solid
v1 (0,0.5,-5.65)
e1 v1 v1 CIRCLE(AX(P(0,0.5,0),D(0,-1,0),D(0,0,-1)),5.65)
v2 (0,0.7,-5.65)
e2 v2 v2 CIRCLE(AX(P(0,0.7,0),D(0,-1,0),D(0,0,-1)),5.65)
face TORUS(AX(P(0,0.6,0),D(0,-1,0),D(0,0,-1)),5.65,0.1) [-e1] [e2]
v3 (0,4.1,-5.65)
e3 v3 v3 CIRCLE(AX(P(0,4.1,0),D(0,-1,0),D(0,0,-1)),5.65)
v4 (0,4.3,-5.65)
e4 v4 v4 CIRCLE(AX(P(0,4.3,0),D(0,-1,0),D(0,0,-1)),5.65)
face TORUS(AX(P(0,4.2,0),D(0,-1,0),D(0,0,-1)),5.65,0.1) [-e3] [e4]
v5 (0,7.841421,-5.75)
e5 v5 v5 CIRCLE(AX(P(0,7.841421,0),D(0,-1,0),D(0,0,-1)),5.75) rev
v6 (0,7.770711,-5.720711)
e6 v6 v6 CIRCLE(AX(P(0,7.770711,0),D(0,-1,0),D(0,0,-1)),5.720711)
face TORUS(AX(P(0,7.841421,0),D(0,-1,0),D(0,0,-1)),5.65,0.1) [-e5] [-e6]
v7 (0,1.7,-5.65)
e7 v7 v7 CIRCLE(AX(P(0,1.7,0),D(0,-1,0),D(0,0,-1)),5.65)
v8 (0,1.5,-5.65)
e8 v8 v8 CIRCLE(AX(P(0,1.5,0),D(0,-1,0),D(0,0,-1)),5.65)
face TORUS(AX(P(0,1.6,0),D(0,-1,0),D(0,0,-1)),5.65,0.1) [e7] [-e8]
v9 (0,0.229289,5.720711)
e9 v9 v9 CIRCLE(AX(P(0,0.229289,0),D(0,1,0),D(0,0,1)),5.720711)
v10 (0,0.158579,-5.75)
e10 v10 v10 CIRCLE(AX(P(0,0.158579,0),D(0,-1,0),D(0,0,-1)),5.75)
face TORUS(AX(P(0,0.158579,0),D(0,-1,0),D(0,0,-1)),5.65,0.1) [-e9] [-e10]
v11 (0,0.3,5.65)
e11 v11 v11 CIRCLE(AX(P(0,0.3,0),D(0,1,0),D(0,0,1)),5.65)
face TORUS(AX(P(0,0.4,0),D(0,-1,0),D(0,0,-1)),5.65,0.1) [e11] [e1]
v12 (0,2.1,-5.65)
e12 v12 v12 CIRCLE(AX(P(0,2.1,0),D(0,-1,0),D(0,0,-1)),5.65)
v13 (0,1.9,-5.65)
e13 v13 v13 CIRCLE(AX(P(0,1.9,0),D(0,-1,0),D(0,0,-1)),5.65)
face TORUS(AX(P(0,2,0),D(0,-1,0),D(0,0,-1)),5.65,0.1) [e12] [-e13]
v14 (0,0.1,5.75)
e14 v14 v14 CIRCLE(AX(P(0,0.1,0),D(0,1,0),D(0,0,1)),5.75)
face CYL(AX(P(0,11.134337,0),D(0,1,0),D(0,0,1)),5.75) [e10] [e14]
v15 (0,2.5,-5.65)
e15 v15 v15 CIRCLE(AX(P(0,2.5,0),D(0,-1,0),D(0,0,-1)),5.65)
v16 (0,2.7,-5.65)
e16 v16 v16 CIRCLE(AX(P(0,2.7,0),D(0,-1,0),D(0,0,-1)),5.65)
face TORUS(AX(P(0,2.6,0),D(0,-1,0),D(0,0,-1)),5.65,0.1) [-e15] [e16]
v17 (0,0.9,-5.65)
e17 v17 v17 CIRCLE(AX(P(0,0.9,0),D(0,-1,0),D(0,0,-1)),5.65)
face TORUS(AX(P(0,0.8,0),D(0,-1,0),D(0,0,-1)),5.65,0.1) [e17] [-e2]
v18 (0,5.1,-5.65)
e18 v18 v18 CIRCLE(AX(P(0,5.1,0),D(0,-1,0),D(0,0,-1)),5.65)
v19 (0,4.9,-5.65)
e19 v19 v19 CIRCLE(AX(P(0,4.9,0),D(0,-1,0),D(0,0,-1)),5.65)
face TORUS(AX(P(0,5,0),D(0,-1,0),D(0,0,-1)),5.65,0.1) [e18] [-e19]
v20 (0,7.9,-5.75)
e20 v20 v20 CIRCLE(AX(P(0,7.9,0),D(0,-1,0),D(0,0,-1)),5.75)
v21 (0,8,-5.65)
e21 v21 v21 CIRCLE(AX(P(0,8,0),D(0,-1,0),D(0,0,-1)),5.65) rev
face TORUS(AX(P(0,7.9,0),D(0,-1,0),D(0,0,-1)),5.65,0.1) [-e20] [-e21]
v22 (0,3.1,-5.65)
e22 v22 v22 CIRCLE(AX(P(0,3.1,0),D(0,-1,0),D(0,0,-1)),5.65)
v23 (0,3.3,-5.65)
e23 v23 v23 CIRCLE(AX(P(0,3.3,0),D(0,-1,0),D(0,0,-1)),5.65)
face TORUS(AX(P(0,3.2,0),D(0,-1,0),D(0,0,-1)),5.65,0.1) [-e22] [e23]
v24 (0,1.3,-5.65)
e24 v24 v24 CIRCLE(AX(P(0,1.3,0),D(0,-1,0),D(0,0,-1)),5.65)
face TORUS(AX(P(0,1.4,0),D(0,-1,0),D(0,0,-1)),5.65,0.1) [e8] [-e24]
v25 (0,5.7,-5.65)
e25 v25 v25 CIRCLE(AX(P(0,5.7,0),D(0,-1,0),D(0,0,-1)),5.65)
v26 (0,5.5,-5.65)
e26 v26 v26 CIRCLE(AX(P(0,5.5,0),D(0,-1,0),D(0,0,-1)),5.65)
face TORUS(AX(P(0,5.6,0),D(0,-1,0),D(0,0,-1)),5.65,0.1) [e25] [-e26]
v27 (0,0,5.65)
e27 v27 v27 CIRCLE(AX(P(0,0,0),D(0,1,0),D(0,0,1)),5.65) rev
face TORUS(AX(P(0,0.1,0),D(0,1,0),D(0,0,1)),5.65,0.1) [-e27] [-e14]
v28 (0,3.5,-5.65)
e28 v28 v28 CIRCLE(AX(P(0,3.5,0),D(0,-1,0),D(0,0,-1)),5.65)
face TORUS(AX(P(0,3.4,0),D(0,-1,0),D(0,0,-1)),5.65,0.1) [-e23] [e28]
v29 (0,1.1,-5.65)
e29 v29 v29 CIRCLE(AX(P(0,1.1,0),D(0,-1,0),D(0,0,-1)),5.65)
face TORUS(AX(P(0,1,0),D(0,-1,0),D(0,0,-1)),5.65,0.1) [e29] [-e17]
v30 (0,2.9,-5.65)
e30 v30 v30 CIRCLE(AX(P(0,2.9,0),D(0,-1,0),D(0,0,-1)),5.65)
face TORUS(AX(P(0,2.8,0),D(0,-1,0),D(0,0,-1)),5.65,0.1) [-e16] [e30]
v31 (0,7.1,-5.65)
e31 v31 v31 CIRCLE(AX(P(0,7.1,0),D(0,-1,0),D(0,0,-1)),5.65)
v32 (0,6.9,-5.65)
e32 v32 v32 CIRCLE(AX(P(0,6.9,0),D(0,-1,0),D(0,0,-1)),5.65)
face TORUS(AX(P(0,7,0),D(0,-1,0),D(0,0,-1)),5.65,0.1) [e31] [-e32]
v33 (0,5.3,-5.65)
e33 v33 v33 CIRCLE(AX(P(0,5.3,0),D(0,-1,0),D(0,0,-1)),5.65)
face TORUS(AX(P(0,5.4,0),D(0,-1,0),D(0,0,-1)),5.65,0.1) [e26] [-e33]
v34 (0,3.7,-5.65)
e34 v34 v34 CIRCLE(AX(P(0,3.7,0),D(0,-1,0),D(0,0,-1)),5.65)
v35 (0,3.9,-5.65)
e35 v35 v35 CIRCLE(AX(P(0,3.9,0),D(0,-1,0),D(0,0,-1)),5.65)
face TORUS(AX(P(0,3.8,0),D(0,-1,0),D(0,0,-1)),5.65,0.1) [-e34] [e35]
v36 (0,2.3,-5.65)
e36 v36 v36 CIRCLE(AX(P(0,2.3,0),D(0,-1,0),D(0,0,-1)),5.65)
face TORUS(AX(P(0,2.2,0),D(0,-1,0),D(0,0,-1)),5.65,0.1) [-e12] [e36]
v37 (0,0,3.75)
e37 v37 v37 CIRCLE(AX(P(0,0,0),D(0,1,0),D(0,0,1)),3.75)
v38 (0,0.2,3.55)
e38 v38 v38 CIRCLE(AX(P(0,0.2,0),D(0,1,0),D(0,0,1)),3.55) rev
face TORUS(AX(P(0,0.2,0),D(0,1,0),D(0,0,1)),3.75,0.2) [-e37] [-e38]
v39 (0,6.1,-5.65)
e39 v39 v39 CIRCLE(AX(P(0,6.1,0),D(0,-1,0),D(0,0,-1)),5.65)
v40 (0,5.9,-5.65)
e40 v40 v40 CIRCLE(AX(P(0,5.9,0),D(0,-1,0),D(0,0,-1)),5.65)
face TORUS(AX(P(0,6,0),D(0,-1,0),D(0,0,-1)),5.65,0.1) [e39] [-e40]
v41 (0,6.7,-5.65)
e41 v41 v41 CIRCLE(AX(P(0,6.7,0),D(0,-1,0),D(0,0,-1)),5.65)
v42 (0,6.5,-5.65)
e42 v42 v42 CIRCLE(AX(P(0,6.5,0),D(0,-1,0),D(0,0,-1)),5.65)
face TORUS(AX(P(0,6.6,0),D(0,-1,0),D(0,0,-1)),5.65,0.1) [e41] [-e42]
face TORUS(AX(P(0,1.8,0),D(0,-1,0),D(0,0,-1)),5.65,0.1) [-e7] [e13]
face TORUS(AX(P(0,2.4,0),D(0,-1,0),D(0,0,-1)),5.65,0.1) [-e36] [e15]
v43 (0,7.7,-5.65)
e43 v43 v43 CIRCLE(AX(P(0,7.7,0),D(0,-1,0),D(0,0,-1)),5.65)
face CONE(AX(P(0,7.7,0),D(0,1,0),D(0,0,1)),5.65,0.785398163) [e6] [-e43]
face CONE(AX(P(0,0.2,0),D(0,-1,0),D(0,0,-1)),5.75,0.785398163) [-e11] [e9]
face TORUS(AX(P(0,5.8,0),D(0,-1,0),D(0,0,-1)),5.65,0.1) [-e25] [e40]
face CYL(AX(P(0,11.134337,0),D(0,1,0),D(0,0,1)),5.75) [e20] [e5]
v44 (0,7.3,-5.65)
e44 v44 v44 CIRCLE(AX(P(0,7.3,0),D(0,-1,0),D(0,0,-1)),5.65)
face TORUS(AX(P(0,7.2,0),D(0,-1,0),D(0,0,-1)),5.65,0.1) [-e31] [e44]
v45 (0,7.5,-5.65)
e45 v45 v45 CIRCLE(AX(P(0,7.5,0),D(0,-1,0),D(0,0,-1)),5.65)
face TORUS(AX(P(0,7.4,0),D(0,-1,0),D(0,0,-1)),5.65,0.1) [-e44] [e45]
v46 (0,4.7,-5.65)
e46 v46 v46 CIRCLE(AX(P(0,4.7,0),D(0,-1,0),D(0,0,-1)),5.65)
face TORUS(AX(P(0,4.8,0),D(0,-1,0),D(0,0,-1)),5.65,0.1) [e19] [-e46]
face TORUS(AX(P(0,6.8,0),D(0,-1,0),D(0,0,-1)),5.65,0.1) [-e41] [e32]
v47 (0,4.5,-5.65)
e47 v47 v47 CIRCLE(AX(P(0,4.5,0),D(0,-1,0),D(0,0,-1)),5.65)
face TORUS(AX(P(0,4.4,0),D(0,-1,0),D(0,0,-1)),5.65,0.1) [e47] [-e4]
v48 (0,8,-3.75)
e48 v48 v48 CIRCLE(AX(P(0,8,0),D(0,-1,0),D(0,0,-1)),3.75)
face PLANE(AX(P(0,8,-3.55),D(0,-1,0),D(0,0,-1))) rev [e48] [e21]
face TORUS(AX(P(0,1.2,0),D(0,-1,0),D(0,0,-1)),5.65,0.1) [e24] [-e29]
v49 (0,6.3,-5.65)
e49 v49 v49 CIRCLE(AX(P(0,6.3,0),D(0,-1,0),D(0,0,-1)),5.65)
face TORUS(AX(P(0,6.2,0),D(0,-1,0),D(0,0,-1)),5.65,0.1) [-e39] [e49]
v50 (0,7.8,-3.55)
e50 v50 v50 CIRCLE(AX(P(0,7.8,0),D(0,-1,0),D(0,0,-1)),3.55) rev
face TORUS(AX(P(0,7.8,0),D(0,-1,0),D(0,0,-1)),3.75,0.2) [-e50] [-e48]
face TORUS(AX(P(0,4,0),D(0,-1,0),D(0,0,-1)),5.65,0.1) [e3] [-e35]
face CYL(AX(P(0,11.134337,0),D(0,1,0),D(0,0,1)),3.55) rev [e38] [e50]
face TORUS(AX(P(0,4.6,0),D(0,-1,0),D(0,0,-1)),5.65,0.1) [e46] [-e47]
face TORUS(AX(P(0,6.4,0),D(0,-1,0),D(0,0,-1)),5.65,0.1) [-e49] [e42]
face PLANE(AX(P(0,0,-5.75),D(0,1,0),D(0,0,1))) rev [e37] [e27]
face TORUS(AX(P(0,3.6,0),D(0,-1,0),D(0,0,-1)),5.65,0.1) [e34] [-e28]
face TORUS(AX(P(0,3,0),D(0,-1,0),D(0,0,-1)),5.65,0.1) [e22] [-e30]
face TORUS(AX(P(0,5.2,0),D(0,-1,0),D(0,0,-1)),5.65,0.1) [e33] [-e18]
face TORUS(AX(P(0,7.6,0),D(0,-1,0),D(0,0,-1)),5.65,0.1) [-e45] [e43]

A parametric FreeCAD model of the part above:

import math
import FreeCAD as App
import Part
import Sketcher
from FreeCAD import Vector
Q = App.Units.Quantity


def edges_at(feature, points):
    """Names of the edges that pass closest to the given points."""
    edges = feature.Shape.Edges
    near = lambda p: min(range(len(edges)), key=lambda i: edges[i].distToShape(Part.Vertex(*p))[0])
    return sorted({f"Edge{near(p) + 1}" for p in points})


def add_polygon(sketch, points):
    """Adds a closed chain of lines whose ends are joined by coincident constraints."""
    first, n = sketch.GeometryCount, len(points)
    for a, b in zip(points, points[1:] + points[:1]):
        sketch.addGeometry(Part.LineSegment(App.Vector(*a, 0), App.Vector(*b, 0)), False)
    for i in range(n):
        sketch.addConstraint(Sketcher.Constraint("Coincident", first + i, 2, first + (i + 1) % n, 1))

doc = App.newDocument("Part")
body = doc.addObject("PartDesign::Body", "Body")

# Sketch on YZ plane
sketch1 = body.newObject("Sketcher::SketchObject", "Sketch")
sketch1.AttachmentSupport = (doc.getObject("YZ_Plane"), [""])
sketch1.MapMode = "FlatFace"
add_polygon(sketch1, [(8, -5.75), (8, -3.55), (0, -3.55), (0, -5.75), (0.2, -5.75), (0.3, -5.65), (0.3, -5.5), (7.7, -5.5), (7.7, -5.65), (7.8, -5.75)])  # lines 0-9
sketch1.addConstraint(Sketcher.Constraint("Vertical", 0))
sketch1.addConstraint(Sketcher.Constraint("Horizontal", 1))
sketch1.addConstraint(Sketcher.Constraint("Vertical", 2))
sketch1.addConstraint(Sketcher.Constraint("Horizontal", 3))
sketch1.addConstraint(Sketcher.Constraint("Vertical", 5))
sketch1.addConstraint(Sketcher.Constraint("Horizontal", 6))
sketch1.addConstraint(Sketcher.Constraint("Vertical", 7))
sketch1.addConstraint(Sketcher.Constraint("Horizontal", 9))
sketch1.addConstraint(Sketcher.Constraint("PointOnObject", 1, 2, -2))
sketch1.addConstraint(Sketcher.Constraint("Perpendicular", 4, 8))
sketch1.addConstraint(Sketcher.Constraint("Horizontal", 4, 2, 7, 2))
sketch1.addConstraint(Sketcher.Constraint("Horizontal", 3, 2, 8, 2))
sketch1.addConstraint(Sketcher.Constraint("Equal", 3, 9))
sketch1.addConstraint(Sketcher.Constraint("Equal", 4, 8))
sketch1.addConstraint(Sketcher.Constraint("DistanceX", 1, 2, 1, 1, Q("8 mm")))
sketch1.addConstraint(Sketcher.Constraint("DistanceX", 3, 1, 3, 2, Q("0.2 mm")))
sketch1.addConstraint(Sketcher.Constraint("DistanceX", 6, 1, 6, 2, Q("7.4 mm")))
sketch1.addConstraint(Sketcher.Constraint("DistanceY", 0, 1, 0, 2, Q("2.2 mm")))
sketch1.addConstraint(Sketcher.Constraint("DistanceY", 5, 1, 5, 2, Q("0.15 mm")))
sketch1.addConstraint(Sketcher.Constraint("DistanceY", 5, 2, -1, 1, Q("5.5 mm")))
revolution = body.newObject("PartDesign::Revolution", "Revolution")
revolution.Profile = sketch1
revolution.ReferenceAxis = (sketch1, ["H_Axis"])
revolution.Angle = 360
doc.recompute()

fillet = body.newObject("PartDesign::Fillet", "Fillet")
fillet.Base = (revolution, edges_at(revolution, [(0, 8, -3.55), (0, 0, -3.55)]))
fillet.Radius = 0.2
doc.recompute()

fillet2 = body.newObject("PartDesign::Fillet", "Fillet001")
fillet2.Base = (fillet, edges_at(fillet, [
    (0, 7.8, -5.75),
    (0, 8, -5.75),
    (0, 0, -5.75),
    (0, 0.2, -5.75),
]))
fillet2.Radius = 0.1

# Sketch on YZ plane
sketch2 = body.newObject("Sketcher::SketchObject", "Sketch001")
sketch2.AttachmentSupport = (doc.getObject("YZ_Plane"), [""])
sketch2.MapMode = "FlatFace"
sketch2.addGeometry(Part.LineSegment(Vector(7.7, -5.65, 0), Vector(7.7, -5.5, 0)), False)
sketch2.addGeometry(Part.LineSegment(Vector(7.7, -5.5, 0), Vector(7.5, -5.5, 0)), False)
sketch2.addGeometry(Part.LineSegment(Vector(7.5, -5.5, 0), Vector(7.5, -5.65, 0)), False)
sketch2.addGeometry(Part.ArcOfCircle(Part.Circle(Vector(7.6, -5.65, 0), Vector(0, 0, 1), 0.1), math.radians(180), math.radians(360)), False)
sketch2.addConstraint(Sketcher.Constraint("Coincident", 0, 2, 1, 1))
sketch2.addConstraint(Sketcher.Constraint("Coincident", 1, 2, 2, 1))
sketch2.addConstraint(Sketcher.Constraint("Tangent", 2, 2, 3, 1))
sketch2.addConstraint(Sketcher.Constraint("Tangent", 3, 2, 0, 1))
sketch2.addConstraint(Sketcher.Constraint("Vertical", 0))
sketch2.addConstraint(Sketcher.Constraint("Horizontal", 1))
sketch2.addConstraint(Sketcher.Constraint("Vertical", 2))
sketch2.addConstraint(Sketcher.Constraint("Radius", 3, Q("0.1 mm")))
sketch2.addConstraint(Sketcher.Constraint("DistanceY", 0, 1, 0, 2, Q("0.15 mm")))
sketch2.addConstraint(Sketcher.Constraint("DistanceX", -1, 1, 3, 3, Q("7.6 mm")))
sketch2.addConstraint(Sketcher.Constraint("DistanceY", 0, 2, -1, 1, Q("5.5 mm")))
revolution2 = body.newObject("PartDesign::Revolution", "Revolution001")
revolution2.Profile = sketch2
revolution2.ReferenceAxis = (sketch2, ["H_Axis"])
revolution2.Angle = 360
doc.recompute()

linearpattern = body.newObject("PartDesign::LinearPattern", "LinearPattern")
linearpattern.Originals = [revolution2]
linearpattern.Direction = (doc.getObject("Y_Axis"), [""])
linearpattern.Mode = "offset"
linearpattern.Offset = 0.2
linearpattern.Occurrences = 37
linearpattern.Reversed = True
body.Tip = linearpattern

doc.recompute()
